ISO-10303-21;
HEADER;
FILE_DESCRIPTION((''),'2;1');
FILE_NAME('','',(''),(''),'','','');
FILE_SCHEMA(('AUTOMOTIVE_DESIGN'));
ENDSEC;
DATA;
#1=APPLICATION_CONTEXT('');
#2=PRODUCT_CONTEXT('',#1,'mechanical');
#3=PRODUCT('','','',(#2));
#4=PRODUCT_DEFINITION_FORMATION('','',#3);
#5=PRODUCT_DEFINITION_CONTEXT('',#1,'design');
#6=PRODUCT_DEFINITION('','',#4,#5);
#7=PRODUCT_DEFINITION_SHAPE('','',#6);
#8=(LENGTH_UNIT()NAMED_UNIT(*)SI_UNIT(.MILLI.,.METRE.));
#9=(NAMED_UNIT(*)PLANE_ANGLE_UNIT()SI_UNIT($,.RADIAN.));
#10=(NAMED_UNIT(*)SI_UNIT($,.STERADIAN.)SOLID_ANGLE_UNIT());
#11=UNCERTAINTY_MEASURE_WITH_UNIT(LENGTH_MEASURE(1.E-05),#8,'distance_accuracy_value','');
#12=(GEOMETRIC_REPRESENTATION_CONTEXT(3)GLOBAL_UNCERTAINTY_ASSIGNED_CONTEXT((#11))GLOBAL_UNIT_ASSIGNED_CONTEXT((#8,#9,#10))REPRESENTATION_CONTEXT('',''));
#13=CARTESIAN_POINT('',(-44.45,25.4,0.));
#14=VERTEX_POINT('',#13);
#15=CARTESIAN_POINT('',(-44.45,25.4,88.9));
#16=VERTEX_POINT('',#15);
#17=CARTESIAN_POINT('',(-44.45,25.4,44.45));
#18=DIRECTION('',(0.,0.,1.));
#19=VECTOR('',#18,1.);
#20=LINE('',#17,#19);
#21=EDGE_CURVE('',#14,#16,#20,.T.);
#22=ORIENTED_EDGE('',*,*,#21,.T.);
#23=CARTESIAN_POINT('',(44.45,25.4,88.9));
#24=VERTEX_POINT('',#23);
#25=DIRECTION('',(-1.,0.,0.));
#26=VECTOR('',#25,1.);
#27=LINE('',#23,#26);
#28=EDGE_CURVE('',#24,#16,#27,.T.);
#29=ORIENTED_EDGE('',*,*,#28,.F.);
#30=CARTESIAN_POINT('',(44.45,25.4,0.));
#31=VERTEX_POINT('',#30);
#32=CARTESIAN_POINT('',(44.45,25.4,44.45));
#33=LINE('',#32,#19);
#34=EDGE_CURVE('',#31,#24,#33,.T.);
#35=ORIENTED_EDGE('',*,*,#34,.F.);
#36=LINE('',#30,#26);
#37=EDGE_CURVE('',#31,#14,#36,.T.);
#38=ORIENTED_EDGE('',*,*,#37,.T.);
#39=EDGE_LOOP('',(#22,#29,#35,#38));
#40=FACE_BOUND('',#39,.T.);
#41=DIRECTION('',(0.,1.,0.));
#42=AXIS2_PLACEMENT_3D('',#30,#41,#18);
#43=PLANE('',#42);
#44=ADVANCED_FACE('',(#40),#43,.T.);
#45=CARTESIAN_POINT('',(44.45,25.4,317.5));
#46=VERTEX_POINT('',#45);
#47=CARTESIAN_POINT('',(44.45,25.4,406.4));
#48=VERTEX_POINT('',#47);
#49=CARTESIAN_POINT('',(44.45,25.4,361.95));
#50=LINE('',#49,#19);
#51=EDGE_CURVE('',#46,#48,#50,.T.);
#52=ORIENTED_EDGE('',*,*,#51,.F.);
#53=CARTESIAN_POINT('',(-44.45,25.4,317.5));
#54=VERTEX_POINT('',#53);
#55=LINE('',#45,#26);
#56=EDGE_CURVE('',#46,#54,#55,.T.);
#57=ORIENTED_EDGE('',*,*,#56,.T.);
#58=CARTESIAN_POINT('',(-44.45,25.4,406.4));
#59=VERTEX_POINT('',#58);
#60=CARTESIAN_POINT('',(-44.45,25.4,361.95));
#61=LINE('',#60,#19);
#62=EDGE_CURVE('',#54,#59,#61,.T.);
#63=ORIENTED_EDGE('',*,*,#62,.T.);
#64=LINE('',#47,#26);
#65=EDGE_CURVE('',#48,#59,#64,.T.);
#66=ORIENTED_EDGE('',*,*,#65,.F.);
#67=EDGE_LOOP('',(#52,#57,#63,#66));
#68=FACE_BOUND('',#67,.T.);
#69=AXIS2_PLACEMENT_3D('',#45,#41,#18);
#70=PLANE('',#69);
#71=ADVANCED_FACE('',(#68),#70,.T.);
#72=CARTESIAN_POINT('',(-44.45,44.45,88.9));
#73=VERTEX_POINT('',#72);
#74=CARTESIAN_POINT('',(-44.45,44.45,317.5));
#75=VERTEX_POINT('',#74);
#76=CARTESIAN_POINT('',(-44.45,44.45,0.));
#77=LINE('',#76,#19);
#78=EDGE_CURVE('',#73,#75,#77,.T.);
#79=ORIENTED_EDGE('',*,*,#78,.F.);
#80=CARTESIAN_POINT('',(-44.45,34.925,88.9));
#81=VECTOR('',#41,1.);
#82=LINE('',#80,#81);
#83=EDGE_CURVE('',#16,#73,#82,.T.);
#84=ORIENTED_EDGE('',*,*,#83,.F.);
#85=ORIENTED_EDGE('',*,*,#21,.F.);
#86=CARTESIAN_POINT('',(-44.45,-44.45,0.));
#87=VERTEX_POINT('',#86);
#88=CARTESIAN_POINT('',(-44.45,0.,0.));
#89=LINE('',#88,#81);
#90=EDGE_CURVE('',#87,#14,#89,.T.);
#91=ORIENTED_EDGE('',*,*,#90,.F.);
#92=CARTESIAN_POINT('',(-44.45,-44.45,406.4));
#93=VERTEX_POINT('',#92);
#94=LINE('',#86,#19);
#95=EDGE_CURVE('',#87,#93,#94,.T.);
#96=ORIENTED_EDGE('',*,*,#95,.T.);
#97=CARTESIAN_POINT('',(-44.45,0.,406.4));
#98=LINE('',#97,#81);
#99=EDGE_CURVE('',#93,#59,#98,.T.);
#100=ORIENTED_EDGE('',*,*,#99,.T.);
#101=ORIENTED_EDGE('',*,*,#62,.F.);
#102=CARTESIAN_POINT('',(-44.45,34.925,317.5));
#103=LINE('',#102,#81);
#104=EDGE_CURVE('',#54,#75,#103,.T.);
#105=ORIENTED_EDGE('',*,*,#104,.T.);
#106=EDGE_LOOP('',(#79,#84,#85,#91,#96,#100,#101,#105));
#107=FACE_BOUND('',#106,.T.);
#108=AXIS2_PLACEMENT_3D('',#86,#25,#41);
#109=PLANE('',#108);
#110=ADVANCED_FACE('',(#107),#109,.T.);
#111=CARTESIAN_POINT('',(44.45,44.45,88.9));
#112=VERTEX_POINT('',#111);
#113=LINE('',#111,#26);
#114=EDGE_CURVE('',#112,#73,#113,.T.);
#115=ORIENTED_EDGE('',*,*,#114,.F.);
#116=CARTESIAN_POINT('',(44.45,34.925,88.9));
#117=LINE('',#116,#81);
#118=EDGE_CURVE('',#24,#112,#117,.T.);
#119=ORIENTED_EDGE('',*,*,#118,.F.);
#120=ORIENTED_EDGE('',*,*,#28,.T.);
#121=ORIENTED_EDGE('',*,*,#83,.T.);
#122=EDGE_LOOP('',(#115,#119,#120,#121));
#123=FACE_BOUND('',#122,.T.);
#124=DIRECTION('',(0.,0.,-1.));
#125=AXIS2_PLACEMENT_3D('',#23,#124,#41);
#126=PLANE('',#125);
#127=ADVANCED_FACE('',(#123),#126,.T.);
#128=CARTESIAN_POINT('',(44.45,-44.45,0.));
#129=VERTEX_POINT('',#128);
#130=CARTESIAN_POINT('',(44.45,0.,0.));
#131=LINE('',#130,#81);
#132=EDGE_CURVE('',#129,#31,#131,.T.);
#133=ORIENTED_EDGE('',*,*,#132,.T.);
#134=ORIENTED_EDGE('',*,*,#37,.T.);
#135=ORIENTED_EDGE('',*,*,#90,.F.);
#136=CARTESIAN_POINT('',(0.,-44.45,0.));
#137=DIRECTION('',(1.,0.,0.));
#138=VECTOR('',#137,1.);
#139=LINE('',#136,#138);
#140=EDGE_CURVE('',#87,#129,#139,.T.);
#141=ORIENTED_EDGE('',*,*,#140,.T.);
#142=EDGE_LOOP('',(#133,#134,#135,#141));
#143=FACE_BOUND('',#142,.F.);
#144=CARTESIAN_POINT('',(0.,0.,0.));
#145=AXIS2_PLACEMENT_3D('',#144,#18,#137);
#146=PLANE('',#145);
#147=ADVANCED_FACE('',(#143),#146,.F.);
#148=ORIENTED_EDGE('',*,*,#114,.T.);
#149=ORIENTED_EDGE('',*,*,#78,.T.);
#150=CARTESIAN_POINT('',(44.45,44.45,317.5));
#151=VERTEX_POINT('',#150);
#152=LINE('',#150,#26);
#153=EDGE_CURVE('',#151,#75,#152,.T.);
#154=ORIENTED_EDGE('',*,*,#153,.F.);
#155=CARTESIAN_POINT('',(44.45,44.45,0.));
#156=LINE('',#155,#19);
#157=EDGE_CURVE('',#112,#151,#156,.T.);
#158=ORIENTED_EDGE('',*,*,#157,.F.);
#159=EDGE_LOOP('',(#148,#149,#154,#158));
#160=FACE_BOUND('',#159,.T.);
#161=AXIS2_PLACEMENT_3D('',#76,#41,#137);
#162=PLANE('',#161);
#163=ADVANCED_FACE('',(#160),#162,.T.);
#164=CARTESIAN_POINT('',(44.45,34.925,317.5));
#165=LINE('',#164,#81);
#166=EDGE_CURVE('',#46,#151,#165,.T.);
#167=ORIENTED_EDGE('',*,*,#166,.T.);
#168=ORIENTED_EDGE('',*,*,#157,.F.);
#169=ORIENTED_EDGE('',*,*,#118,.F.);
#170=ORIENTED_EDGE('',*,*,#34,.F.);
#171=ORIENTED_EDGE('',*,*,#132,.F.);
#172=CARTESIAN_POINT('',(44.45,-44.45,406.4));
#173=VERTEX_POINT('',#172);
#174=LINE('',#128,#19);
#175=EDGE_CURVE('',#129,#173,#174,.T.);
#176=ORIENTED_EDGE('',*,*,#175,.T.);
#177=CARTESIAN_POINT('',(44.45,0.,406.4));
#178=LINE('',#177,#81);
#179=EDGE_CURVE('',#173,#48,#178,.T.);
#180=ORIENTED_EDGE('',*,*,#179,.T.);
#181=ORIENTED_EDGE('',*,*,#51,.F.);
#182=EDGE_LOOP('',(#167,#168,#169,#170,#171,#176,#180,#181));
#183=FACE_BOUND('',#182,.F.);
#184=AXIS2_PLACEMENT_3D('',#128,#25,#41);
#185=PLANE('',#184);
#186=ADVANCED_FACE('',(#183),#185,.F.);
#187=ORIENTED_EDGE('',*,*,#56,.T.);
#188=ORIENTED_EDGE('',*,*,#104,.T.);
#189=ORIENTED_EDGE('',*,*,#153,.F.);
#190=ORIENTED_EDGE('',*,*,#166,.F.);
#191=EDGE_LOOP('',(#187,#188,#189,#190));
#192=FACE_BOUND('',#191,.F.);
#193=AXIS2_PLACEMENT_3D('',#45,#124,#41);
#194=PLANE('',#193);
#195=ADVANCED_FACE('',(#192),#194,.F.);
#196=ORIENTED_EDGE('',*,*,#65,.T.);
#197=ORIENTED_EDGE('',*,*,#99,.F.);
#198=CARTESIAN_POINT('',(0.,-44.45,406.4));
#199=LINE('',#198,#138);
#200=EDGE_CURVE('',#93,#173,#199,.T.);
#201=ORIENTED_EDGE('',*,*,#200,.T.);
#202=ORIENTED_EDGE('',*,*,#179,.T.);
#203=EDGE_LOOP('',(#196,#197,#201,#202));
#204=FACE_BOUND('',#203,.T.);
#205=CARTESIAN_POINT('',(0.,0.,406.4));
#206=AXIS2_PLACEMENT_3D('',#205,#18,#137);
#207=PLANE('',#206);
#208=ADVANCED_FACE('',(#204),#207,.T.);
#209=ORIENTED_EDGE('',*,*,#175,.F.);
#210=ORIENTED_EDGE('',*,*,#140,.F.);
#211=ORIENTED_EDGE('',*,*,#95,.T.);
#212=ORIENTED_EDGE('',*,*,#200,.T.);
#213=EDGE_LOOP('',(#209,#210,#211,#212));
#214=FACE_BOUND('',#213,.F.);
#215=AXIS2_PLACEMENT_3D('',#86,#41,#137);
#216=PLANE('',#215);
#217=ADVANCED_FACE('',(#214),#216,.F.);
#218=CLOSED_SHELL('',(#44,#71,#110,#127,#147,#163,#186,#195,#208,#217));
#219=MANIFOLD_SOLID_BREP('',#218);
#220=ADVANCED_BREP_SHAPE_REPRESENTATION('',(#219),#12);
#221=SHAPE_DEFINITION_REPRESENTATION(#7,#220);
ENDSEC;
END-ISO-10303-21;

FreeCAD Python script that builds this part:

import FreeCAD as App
import Part
import Sketcher
from FreeCAD import Vector
Q = App.Units.Quantity


def add_polygon(sketch, points):
    """Adds a closed chain of lines whose ends are joined by coincident constraints."""
    first, n = sketch.GeometryCount, len(points)
    for a, b in zip(points, points[1:] + points[:1]):
        sketch.addGeometry(Part.LineSegment(App.Vector(*a, 0), App.Vector(*b, 0)), False)
    for i in range(n):
        sketch.addConstraint(Sketcher.Constraint("Coincident", first + i, 2, first + (i + 1) % n, 1))

doc = App.newDocument("Part")
body = doc.addObject("PartDesign::Body", "Body")

sketch1 = doc.addObject("Sketcher::SketchObject", "Sketch")
body.addObject(sketch1)
sketch1.AttachmentSupport = (doc.XY_Plane, [""])
sketch1.MapMode = "FlatFace"
add_polygon(sketch1, [(-44.45, 44.45), (-44.45, -44.45), (44.45, -44.45), (44.45, 44.45)])
sketch1.addConstraint([
    Sketcher.Constraint("Vertical", 0),
    Sketcher.Constraint("Horizontal", 1),
    Sketcher.Constraint("Vertical", 2),
    Sketcher.Constraint("Horizontal", 3),
    Sketcher.Constraint("Symmetric", 0, 2, 2, 2, -1, 1),
    Sketcher.Constraint("Equal", 3, 0),
    Sketcher.Constraint("DistanceX", 1, 1, 1, 2, Q("3.5 in")),
])
pad1 = doc.addObject("PartDesign::Pad", "Pad")
body.addObject(pad1)
pad1.Profile = sketch1
pad1.Length = Q("16 in")

sketch2 = doc.addObject("Sketcher::SketchObject", "Sketch001")
body.addObject(sketch2)
sketch2.AttachmentSupport = (doc.YZ_Plane, [""])
sketch2.MapMode = "FlatFace"
sketch2.AttachmentOffset = App.Placement(Vector(0, 0, 1.75 * 25.4), App.Rotation())
add_polygon(sketch2, [(25.4, 406.4), (25.4, 317.5), (44.45, 317.5), (44.45, 406.4)])
add_polygon(sketch2, [(25.4, 88.9), (25.4, 0), (44.45, 0), (44.45, 88.9)])
sketch2.addConstraint([
    Sketcher.Constraint("Vertical", 0),
    Sketcher.Constraint("Horizontal", 1),
    Sketcher.Constraint("Vertical", 2),
    Sketcher.Constraint("Horizontal", 3),
    Sketcher.Constraint("Vertical", 4),
    Sketcher.Constraint("Horizontal", 5),
    Sketcher.Constraint("Vertical", 6),
    Sketcher.Constraint("Horizontal", 7),
    Sketcher.Constraint("PointOnObject", 4, 2, -1),
    Sketcher.Constraint("Vertical", 3, 2, 4, 2),
    Sketcher.Constraint("Vertical", 2, 2, 5, 2),
    Sketcher.Constraint("Equal", 2, 4),
    Sketcher.Constraint("DistanceY", 0, 2, 0, 1, Q("3.5 in")),
    Sketcher.Constraint("DistanceX", -1, 1, 0, 2, Q("1 in")),
    Sketcher.Constraint("DistanceY", -1, 1, 2, 2, Q("16 in")),
    Sketcher.Constraint("DistanceX", 1, 1, 1, 2, Q("0.75 in")),
])
pocket1 = doc.addObject("PartDesign::Pocket", "Pocket")
body.addObject(pocket1)
pocket1.Profile = sketch2
pocket1.Type = "ThroughAll"

doc.recompute()
